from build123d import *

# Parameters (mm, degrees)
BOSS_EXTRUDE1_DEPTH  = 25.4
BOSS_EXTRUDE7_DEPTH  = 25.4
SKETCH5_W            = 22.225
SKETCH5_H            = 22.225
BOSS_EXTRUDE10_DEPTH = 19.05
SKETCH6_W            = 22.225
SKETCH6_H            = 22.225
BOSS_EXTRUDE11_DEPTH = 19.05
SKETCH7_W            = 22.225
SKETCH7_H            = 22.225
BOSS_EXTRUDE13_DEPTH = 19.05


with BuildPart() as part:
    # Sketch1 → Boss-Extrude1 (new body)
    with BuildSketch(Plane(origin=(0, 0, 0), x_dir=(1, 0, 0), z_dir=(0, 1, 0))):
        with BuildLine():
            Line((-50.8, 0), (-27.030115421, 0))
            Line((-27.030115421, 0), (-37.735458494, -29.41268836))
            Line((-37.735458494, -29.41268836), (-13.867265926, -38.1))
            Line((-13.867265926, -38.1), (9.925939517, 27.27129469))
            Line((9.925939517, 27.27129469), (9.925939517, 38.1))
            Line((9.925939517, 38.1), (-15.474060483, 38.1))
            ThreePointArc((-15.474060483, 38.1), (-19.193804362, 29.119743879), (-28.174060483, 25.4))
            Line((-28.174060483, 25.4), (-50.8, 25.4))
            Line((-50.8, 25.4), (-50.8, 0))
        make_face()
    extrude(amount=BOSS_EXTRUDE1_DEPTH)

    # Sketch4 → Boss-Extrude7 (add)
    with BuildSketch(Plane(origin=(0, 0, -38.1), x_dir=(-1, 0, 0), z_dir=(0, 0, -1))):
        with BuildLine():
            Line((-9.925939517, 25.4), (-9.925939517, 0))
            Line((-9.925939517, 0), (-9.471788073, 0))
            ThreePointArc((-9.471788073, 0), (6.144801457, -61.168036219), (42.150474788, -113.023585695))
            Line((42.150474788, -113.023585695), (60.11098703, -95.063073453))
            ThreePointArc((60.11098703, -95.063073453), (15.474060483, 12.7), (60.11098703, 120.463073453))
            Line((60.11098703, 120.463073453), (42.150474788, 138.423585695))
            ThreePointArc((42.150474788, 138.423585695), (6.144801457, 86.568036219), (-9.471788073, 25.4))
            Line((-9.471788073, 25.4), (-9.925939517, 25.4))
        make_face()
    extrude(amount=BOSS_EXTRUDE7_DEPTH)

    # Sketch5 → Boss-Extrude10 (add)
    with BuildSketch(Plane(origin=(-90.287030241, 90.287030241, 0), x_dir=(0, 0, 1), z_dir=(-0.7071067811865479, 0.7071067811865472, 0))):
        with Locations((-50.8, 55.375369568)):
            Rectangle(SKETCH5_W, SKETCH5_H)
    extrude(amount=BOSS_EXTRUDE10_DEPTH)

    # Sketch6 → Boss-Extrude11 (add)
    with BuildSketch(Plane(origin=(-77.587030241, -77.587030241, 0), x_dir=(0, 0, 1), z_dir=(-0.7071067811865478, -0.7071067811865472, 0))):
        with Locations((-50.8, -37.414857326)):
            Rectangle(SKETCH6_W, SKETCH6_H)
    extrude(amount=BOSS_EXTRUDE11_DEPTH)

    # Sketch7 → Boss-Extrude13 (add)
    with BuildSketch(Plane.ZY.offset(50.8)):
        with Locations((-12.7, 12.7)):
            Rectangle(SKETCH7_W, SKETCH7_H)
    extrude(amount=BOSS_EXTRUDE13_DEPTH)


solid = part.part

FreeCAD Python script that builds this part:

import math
import FreeCAD as App
import Part
import Sketcher

V = App.Vector
Q = App.Units.Quantity

doc = App.newDocument("Part")
body = doc.addObject("PartDesign::Body", "Body")

sketch1 = body.newObject("Sketcher::SketchObject", "Sketch")
sketch1.AttachmentSupport = (doc.getObject("XZ_Plane"), [""])
sketch1.MapMode = "FlatFace"
sketch1.addGeometry([
    Part.LineSegment(V(-51, 0, 0), V(-27, 0, 0)),
    Part.LineSegment(V(-27, 0, 0), V(-38, 29, 0)),
    Part.LineSegment(V(-38, 29, 0), V(-14, 38, 0)),
    Part.LineSegment(V(-14, 38, 0), V(10, -27, 0)),
    Part.LineSegment(V(10, -27, 0), V(10, -38, 0)),
    Part.LineSegment(V(10, -38, 0), V(-15, -38, 0)),
    Part.ArcOfCircle(Part.Circle(V(-28, -38, 0), V(0, 0, 1), 13), math.radians(0), math.radians(90)),
    Part.LineSegment(V(-28, -25, 0), V(-51, -25, 0)),
    Part.LineSegment(V(-51, -25, 0), V(-51, 0, 0)),
], False)
sketch1.addConstraint([
    Sketcher.Constraint("Coincident", 0, 2, 1, 1),
    Sketcher.Constraint("Coincident", 1, 2, 2, 1),
    Sketcher.Constraint("Coincident", 2, 2, 3, 1),
    Sketcher.Constraint("Coincident", 3, 2, 4, 1),
    Sketcher.Constraint("Coincident", 4, 2, 5, 1),
    Sketcher.Constraint("Coincident", 5, 2, 6, 1),
    Sketcher.Constraint("Tangent", 6, 2, 7, 1),
    Sketcher.Constraint("Coincident", 7, 2, 8, 1),
    Sketcher.Constraint("Coincident", 8, 2, 0, 1),
    Sketcher.Constraint("Horizontal", 0),
    Sketcher.Constraint("Vertical", 4),
    Sketcher.Constraint("Horizontal", 5),
    Sketcher.Constraint("Horizontal", 7),
    Sketcher.Constraint("Vertical", 8),
    Sketcher.Constraint("PointOnObject", 0, 2, -1),
    Sketcher.Constraint("Perpendicular", 1, 2),
    Sketcher.Constraint("Perpendicular", 2, 3),
    Sketcher.Constraint("Horizontal", 6, 3, 4, 2),
    Sketcher.Constraint("Equal", 5, 8),
    Sketcher.Constraint("Radius", 6, Q("0.5 in")),
    Sketcher.Constraint("DistanceX", 5, 2, 5, 1, Q("1 in")),
    Sketcher.Constraint("Distance", 2, Q("1 in")),
    Sketcher.Constraint("DistanceX", 7, 2, -1, 1, Q("2 in")),
    Sketcher.Constraint("Angle", 1, Q("110 deg")),
    Sketcher.Constraint("DistanceY", 6, 3, 2, 2, Q("3 in")),
    Sketcher.Constraint("DistanceX", 7, 2, 7, 1, 22.62594),
    Sketcher.Constraint("DistanceX", 1, 2, 6, 3, 9.561398),
])
pad1 = body.newObject("PartDesign::Pad", "Pad")
pad1.Profile = sketch1
pad1.Length = Q("1 in")
pad1.Reversed = True

sketch2 = body.newObject("Sketcher::SketchObject", "Sketch001")
sketch2.AttachmentSupport = (doc.getObject("XY_Plane"), [""])
sketch2.MapMode = "FlatFace"
sketch2.AttachmentOffset = App.Placement(V(0, 0, -1.5 * 25.4), App.Rotation())
sketch2.addGeometry([
    Part.LineSegment(V(9.93, 25.4, 0), V(9.93, 0, 0)),
    Part.LineSegment(V(9.93, 0, 0), V(9.47, 0, 0)),
    Part.ArcOfCircle(Part.Circle(V(-167.87, 12.7, 0), V(0, 0, 1), 177.8), math.radians(-45), math.radians(-4)),
    Part.LineSegment(V(-42.15, -113.02, 0), V(-60.11, -95.06, 0)),
    Part.ArcOfCircle(Part.Circle(V(-167.87, 12.7, 0), V(0, 0, 1), 152.4), math.radians(-45), math.radians(45)),
    Part.LineSegment(V(-60.11, 120.46, 0), V(-42.15, 138.42, 0)),
    Part.ArcOfCircle(Part.Circle(V(-167.87, 12.7, 0), V(0, 0, 1), 177.8), math.radians(4), math.radians(45)),
    Part.LineSegment(V(9.47, 25.4, 0), V(9.93, 25.4, 0)),
], False)
sketch2.addConstraint([
    Sketcher.Constraint("Coincident", 0, 2, 1, 1),
    Sketcher.Constraint("Coincident", 1, 2, 2, 2),
    Sketcher.Constraint("Coincident", 2, 1, 3, 1),
    Sketcher.Constraint("Coincident", 3, 2, 4, 1),
    Sketcher.Constraint("Coincident", 4, 2, 5, 1),
    Sketcher.Constraint("Coincident", 5, 2, 6, 2),
    Sketcher.Constraint("Coincident", 6, 1, 7, 1),
    Sketcher.Constraint("Coincident", 7, 2, 0, 1),
    Sketcher.Constraint("Vertical", 0),
    Sketcher.Constraint("Horizontal", 1),
    Sketcher.Constraint("Horizontal", 7),
    Sketcher.Constraint("Coincident", 4, 3, 2, 3),
    Sketcher.Constraint("Coincident", 6, 3, 2, 3),
    Sketcher.Constraint("Equal", 2, 6),
    Sketcher.Constraint("PointOnObject", 0, 2, -1),
    Sketcher.Constraint("Perpendicular", 3, 5),
    Sketcher.Constraint("Vertical", 3, 2, 4, 2),
    Sketcher.Constraint("Vertical", 2, 1, 5, 2),
    Sketcher.Constraint("Vertical", 1, 2, 6, 1),
    Sketcher.Constraint("Radius", 2, Q("7 in")),
    Sketcher.Constraint("Radius", 4, Q("6 in")),
    Sketcher.Constraint("DistanceY", 0, 2, 0, 1, Q("1 in")),
    Sketcher.Constraint("DistanceX", 4, 3, 0, 2, Q("7 in")),
    Sketcher.Constraint("DistanceX", 2, 3, -1, 1, 167.87406),
    Sketcher.Constraint("DistanceX", 2, 1, -1, 1, 42.150475),
])
pad2 = body.newObject("PartDesign::Pad", "Pad001")
pad2.Profile = sketch2
pad2.Length = Q("1 in")
pad2.Reversed = True

sketch3 = body.newObject("Sketcher::SketchObject", "Sketch002")
sketch3.Placement = App.Placement(V(-90.28703, 90.28703, 0), App.Rotation(V(0, 0, 1), V(0.707106781, 0.707106781, 0), V(-0.707106781, 0.707106781, 0), "ZXY"))
sketch3.addGeometry([
    Part.LineSegment(V(-62, 66, 0), V(-62, 44, 0)),
    Part.LineSegment(V(-62, 44, 0), V(-40, 44, 0)),
    Part.LineSegment(V(-40, 44, 0), V(-40, 66, 0)),
    Part.LineSegment(V(-40, 66, 0), V(-62, 66, 0)),
], False)
sketch3.addConstraint([
    Sketcher.Constraint("Coincident", 0, 2, 1, 1),
    Sketcher.Constraint("Coincident", 1, 2, 2, 1),
    Sketcher.Constraint("Coincident", 2, 2, 3, 1),
    Sketcher.Constraint("Coincident", 3, 2, 0, 1),
    Sketcher.Constraint("Vertical", 0),
    Sketcher.Constraint("Horizontal", 1),
    Sketcher.Constraint("Vertical", 2),
    Sketcher.Constraint("Horizontal", 3),
    Sketcher.Constraint("Equal", 3, 0),
    Sketcher.Constraint("DistanceX", 1, 1, 1, 2, Q("0.875 in")),
    Sketcher.Constraint("DistanceX", 0, 2, -1, 1, Q("2.4375 in")),
    Sketcher.Constraint("DistanceY", -1, 1, 0, 2, 44.26287),
])
pad3 = body.newObject("PartDesign::Pad", "Pad002")
pad3.Profile = sketch3
pad3.Length = Q("0.75 in")

sketch4 = body.newObject("Sketcher::SketchObject", "Sketch003")
sketch4.Placement = App.Placement(V(-77.58703, -77.58703, 0), App.Rotation(V(0, 0, 1), V(-0.707106781, 0.707106781, 0), V(-0.707106781, -0.707106781, 0), "ZXY"))
sketch4.addGeometry([
    Part.LineSegment(V(-62, -26, 0), V(-62, -49, 0)),
    Part.LineSegment(V(-62, -49, 0), V(-40, -49, 0)),
    Part.LineSegment(V(-40, -49, 0), V(-40, -26, 0)),
    Part.LineSegment(V(-40, -26, 0), V(-62, -26, 0)),
], False)
sketch4.addConstraint([
    Sketcher.Constraint("Coincident", 0, 2, 1, 1),
    Sketcher.Constraint("Coincident", 1, 2, 2, 1),
    Sketcher.Constraint("Coincident", 2, 2, 3, 1),
    Sketcher.Constraint("Coincident", 3, 2, 0, 1),
    Sketcher.Constraint("Vertical", 0),
    Sketcher.Constraint("Horizontal", 1),
    Sketcher.Constraint("Vertical", 2),
    Sketcher.Constraint("Horizontal", 3),
    Sketcher.Constraint("Equal", 3, 0),
    Sketcher.Constraint("DistanceX", 1, 1, 1, 2, Q("0.875 in")),
    Sketcher.Constraint("DistanceX", 0, 2, -1, 1, Q("2.4375 in")),
    Sketcher.Constraint("DistanceY", 0, 2, -1, 1, 48.527357),
])
pad4 = body.newObject("PartDesign::Pad", "Pad003")
pad4.Profile = sketch4
pad4.Length = Q("0.75 in")

sketch5 = body.newObject("Sketcher::SketchObject", "Sketch004")
sketch5.AttachmentSupport = (doc.getObject("YZ_Plane"), [""])
sketch5.MapMode = "FlatFace"
sketch5.AttachmentOffset = App.Placement(V(0, 0, -2 * 25.4), App.Rotation())
sketch5.addGeometry([
    Part.LineSegment(V(24, -24, 0), V(2, -24, 0)),
    Part.LineSegment(V(2, -24, 0), V(2, -2, 0)),
    Part.LineSegment(V(2, -2, 0), V(24, -2, 0)),
    Part.LineSegment(V(24, -2, 0), V(24, -24, 0)),
], False)
sketch5.addConstraint([
    Sketcher.Constraint("Coincident", 0, 2, 1, 1),
    Sketcher.Constraint("Coincident", 1, 2, 2, 1),
    Sketcher.Constraint("Coincident", 2, 2, 3, 1),
    Sketcher.Constraint("Coincident", 3, 2, 0, 1),
    Sketcher.Constraint("Horizontal", 0),
    Sketcher.Constraint("Vertical", 1),
    Sketcher.Constraint("Horizontal", 2),
    Sketcher.Constraint("Vertical", 3),
    Sketcher.Constraint("Equal", 2, 1),
    Sketcher.Constraint("DistanceX", 0, 2, 0, 1, Q("0.875 in")),
    Sketcher.Constraint("DistanceX", -1, 1, 0, 2, Q("0.0625 in")),
    Sketcher.Constraint("DistanceY", 0, 2, -1, 1, Q("0.9375 in")),
])
pad5 = body.newObject("PartDesign::Pad", "Pad004")
pad5.Profile = sketch5
pad5.Length = Q("0.75 in")
pad5.Reversed = True

doc.recompute()
